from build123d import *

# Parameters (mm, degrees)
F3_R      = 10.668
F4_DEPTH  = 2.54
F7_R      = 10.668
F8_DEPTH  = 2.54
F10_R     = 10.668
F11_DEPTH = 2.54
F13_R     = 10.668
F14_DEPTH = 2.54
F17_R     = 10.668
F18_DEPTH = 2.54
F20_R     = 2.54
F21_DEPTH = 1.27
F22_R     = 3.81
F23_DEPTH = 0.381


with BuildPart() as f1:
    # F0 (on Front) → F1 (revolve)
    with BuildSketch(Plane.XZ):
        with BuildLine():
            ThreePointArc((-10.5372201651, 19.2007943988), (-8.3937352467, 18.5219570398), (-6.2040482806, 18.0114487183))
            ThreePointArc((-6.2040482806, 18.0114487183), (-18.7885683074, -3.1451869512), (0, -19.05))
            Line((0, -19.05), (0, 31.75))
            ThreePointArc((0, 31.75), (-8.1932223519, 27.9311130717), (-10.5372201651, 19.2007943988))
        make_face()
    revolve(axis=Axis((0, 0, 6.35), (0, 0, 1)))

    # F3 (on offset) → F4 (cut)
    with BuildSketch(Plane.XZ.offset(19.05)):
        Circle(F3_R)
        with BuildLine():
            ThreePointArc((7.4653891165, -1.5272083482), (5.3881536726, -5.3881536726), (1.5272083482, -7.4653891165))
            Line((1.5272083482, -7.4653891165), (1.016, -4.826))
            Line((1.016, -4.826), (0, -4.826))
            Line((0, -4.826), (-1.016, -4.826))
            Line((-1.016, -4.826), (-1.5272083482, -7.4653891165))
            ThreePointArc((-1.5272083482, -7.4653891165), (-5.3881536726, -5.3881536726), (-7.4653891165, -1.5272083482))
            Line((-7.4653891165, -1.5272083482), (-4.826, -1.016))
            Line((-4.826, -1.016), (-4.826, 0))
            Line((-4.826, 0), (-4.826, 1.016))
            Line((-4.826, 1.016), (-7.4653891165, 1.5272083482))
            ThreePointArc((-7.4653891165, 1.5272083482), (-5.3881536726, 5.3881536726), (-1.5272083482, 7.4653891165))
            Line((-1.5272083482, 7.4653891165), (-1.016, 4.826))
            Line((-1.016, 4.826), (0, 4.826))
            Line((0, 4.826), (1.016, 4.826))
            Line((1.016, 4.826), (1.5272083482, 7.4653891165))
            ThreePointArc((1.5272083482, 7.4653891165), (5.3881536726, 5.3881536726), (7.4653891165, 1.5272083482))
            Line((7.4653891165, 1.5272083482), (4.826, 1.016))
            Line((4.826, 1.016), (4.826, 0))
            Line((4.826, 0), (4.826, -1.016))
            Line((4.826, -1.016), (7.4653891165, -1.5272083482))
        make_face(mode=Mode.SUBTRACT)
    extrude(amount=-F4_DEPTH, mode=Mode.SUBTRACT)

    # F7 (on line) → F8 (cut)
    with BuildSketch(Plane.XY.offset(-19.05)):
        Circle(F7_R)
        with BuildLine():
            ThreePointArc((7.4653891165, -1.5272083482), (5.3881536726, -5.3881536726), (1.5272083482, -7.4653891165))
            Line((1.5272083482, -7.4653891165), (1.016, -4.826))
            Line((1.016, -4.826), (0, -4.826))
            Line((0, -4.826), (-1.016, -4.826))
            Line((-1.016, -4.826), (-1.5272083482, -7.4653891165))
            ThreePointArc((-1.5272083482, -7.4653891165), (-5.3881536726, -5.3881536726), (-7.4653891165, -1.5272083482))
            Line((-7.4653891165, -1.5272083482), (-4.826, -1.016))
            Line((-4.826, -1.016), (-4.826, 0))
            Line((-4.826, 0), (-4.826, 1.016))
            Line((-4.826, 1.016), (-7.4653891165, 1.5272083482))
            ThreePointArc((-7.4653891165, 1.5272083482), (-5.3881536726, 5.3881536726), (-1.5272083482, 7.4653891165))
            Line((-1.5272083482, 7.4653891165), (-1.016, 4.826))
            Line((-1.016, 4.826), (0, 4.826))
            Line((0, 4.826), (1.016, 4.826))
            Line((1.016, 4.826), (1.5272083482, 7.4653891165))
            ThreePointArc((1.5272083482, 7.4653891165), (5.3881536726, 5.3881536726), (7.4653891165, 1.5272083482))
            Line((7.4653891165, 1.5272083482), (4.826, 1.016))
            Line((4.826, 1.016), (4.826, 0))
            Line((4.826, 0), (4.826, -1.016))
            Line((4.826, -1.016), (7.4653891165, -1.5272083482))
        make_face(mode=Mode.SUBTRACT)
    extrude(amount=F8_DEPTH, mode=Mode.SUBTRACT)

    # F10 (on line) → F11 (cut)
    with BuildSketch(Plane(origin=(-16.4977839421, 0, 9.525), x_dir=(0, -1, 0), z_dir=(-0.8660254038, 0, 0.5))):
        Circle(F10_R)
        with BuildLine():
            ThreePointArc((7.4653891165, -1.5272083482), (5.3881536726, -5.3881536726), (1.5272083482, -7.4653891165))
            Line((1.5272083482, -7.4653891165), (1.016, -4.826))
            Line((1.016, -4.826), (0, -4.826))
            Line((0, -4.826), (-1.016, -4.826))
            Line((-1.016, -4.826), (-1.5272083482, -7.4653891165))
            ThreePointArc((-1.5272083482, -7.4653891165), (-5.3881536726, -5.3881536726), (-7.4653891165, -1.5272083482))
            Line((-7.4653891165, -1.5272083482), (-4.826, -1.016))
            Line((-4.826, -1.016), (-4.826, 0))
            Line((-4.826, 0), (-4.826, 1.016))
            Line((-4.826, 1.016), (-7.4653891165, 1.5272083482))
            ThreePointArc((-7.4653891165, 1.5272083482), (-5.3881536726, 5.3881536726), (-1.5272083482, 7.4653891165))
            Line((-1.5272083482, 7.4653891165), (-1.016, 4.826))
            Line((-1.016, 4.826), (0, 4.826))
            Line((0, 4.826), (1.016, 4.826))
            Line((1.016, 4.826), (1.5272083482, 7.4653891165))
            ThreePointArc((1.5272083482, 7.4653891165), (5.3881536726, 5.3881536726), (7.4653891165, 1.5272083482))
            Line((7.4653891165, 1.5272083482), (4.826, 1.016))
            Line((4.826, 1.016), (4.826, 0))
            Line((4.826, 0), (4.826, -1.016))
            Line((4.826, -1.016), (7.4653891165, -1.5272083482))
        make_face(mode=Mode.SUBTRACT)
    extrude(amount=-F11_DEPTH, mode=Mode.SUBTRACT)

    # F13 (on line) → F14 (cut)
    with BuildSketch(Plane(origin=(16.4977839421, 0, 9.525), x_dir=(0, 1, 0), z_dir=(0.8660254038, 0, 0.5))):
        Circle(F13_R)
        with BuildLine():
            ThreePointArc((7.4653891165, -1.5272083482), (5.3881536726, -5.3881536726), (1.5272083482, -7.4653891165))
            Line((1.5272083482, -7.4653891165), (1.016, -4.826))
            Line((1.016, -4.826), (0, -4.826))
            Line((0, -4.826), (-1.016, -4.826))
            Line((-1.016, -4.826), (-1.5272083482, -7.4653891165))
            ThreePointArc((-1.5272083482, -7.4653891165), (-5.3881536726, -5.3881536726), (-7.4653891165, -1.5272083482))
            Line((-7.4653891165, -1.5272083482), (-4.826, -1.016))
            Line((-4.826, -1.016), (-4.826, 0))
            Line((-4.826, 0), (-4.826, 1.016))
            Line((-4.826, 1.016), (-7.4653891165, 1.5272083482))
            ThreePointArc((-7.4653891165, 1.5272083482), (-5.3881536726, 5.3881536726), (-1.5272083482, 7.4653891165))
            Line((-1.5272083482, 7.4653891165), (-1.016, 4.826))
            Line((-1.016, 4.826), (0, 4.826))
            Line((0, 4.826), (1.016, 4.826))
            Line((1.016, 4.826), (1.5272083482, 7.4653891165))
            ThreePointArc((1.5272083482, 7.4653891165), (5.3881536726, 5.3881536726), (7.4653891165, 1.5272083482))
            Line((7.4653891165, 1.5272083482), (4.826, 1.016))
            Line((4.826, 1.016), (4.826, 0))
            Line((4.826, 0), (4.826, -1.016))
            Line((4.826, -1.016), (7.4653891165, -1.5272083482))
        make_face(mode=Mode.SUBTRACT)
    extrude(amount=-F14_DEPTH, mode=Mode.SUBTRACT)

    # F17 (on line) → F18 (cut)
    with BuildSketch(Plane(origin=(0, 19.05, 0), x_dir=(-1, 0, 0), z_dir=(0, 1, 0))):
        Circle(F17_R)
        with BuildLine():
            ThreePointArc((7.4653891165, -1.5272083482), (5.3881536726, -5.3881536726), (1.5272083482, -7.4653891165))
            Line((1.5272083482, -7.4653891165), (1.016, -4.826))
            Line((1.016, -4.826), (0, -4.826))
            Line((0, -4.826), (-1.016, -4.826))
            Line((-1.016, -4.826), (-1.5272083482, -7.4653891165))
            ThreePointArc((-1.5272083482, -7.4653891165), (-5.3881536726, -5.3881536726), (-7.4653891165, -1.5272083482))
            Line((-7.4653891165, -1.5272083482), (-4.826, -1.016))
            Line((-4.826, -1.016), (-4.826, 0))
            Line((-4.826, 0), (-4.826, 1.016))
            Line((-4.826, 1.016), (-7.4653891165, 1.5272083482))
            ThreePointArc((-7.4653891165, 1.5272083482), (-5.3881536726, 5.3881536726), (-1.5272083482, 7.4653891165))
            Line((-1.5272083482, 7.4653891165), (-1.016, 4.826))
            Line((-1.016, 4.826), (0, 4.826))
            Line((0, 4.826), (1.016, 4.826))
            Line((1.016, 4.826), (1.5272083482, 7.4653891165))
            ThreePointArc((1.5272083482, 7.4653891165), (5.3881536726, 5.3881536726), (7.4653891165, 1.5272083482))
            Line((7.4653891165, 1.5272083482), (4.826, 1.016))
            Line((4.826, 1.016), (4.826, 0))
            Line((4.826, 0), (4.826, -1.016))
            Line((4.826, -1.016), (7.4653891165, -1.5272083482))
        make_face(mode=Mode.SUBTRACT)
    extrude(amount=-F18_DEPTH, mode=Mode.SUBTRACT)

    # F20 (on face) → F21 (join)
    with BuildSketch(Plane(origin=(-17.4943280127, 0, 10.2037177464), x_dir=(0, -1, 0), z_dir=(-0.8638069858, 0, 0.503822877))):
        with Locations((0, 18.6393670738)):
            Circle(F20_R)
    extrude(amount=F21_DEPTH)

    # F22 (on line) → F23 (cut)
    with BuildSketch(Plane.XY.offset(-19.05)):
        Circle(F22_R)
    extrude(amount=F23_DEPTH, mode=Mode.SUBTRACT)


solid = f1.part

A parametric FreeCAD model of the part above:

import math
import FreeCAD as App
import Part
import Sketcher
from FreeCAD import Vector
Q = App.Units.Quantity

doc = App.newDocument("Part")
body = doc.addObject("PartDesign::Body", "Body")

# Sketch on XZ plane
sketch1 = body.newObject("Sketcher::SketchObject", "Sketch")
sketch1.AttachmentSupport = (doc.getObject("XZ_Plane"), [""])
sketch1.MapMode = "FlatFace"
sketch1.addGeometry([
    Part.ArcOfCircle(Part.Circle(Vector(-0.72807, 46.450462, 0), Vector(0, 0, 1), 28.961419), math.radians(-109.797518), math.radians(-100.899005)),
    Part.ArcOfCircle(Part.Circle(Vector(0, 0, 0), Vector(0, 0, 1), 19.05), math.radians(109.006282), math.radians(270)),
    Part.LineSegment(Vector(0, -19.05, 0), Vector(0, 31.75, 0)),
    Part.ArcOfCircle(Part.Circle(Vector(0, 21.051491, 0), Vector(0, 0, 1), 10.698509), math.radians(90), math.radians(189.961503)),
], False)
sketch1.addConstraint([
    Sketcher.Constraint("Coincident", 0, 2, 1, 1),
    Sketcher.Constraint("Coincident", 1, 2, 2, 1),
    Sketcher.Constraint("Coincident", 2, 2, 3, 1),
    Sketcher.Constraint("Coincident", 3, 2, 0, 1),
    Sketcher.Constraint("Vertical", 2),
    Sketcher.Constraint("Coincident", 1, 3, -1, 1),
    Sketcher.Constraint("PointOnObject", 3, 3, -2),
    Sketcher.Constraint("PointOnObject", 1, 2, -2),
    Sketcher.Constraint("DistanceY", 2, 1, 2, 2, Q("2 in")),
    Sketcher.Constraint("Radius", 1, Q("0.75 in")),
    Sketcher.Constraint("Radius", 0, 28.961419),
    Sketcher.Constraint("Radius", 3, 10.698509),
    Sketcher.Constraint("DistanceX", 0, 3, -1, 1, 0.72807),
    Sketcher.Constraint("DistanceY", -1, 1, 0, 3, 46.450462),
])
revolution = body.newObject("PartDesign::Revolution", "Revolution")
revolution.Profile = sketch1
revolution.ReferenceAxis = (sketch1, ["V_Axis"])
revolution.Angle = 360

# Sketch on XZ plane
sketch2 = body.newObject("Sketcher::SketchObject", "Sketch001")
sketch2.AttachmentSupport = (doc.getObject("XZ_Plane"), [""])
sketch2.MapMode = "FlatFace"
sketch2.AttachmentOffset = App.Placement(Vector(0, 0, 0.75 * 25.4), App.Rotation())
sketch2.addGeometry([
    Part.Circle(Vector(0, 0, 0), Vector(0, 0, 1), 10.668),  # 0
    Part.LineSegment(Vector(4.826, -1.016, 0), Vector(7.465389, -1.527208, 0)),  # 1
    Part.ArcOfCircle(Part.Circle(Vector(0, 0, 0), Vector(0, 0, 1), 7.62), math.radians(-78.438418), math.radians(-11.561582)),  # 2
    Part.LineSegment(Vector(1.527208, -7.465389, 0), Vector(1.016, -4.826, 0)),  # 3
    Part.LineSegment(Vector(1.016, -4.826, 0), Vector(-1.016, -4.826, 0)),  # 4
    Part.LineSegment(Vector(-1.016, -4.826, 0), Vector(-1.527208, -7.465389, 0)),  # 5
    Part.ArcOfCircle(Part.Circle(Vector(0, 0, 0), Vector(0, 0, 1), 7.62), math.radians(-168.438418), math.radians(-101.561582)),  # 6
    Part.LineSegment(Vector(-7.465389, -1.527208, 0), Vector(-4.826, -1.016, 0)),  # 7
    Part.LineSegment(Vector(-4.826, -1.016, 0), Vector(-4.826, 1.016, 0)),  # 8
    Part.LineSegment(Vector(-4.826, 1.016, 0), Vector(-7.465389, 1.527208, 0)),  # 9
    Part.ArcOfCircle(Part.Circle(Vector(0, 0, 0), Vector(0, 0, 1), 7.62), math.radians(101.561582), math.radians(168.438418)),  # 10
    Part.LineSegment(Vector(-1.527208, 7.465389, 0), Vector(-1.016, 4.826, 0)),  # 11
    Part.LineSegment(Vector(-1.016, 4.826, 0), Vector(1.016, 4.826, 0)),  # 12
    Part.LineSegment(Vector(1.016, 4.826, 0), Vector(1.527208, 7.465389, 0)),  # 13
    Part.ArcOfCircle(Part.Circle(Vector(0, 0, 0), Vector(0, 0, 1), 7.62), math.radians(11.561582), math.radians(78.438418)),  # 14
    Part.LineSegment(Vector(7.465389, 1.527208, 0), Vector(4.826, 1.016, 0)),  # 15
    Part.LineSegment(Vector(4.826, 1.016, 0), Vector(4.826, -1.016, 0)),  # 16
], False)
sketch2.addConstraint([
    Sketcher.Constraint("Coincident", 1, 2, 2, 2),
    Sketcher.Constraint("Coincident", 2, 1, 3, 1),
    Sketcher.Constraint("Coincident", 3, 2, 4, 1),
    Sketcher.Constraint("Coincident", 4, 2, 5, 1),
    Sketcher.Constraint("Coincident", 5, 2, 6, 2),
    Sketcher.Constraint("Coincident", 6, 1, 7, 1),
    Sketcher.Constraint("Coincident", 7, 2, 8, 1),
    Sketcher.Constraint("Coincident", 8, 2, 9, 1),
    Sketcher.Constraint("Coincident", 9, 2, 10, 2),
    Sketcher.Constraint("Coincident", 10, 1, 11, 1),
    Sketcher.Constraint("Coincident", 11, 2, 12, 1),
    Sketcher.Constraint("Coincident", 12, 2, 13, 1),
    Sketcher.Constraint("Coincident", 13, 2, 14, 2),
    Sketcher.Constraint("Coincident", 14, 1, 15, 1),
    Sketcher.Constraint("Coincident", 15, 2, 16, 1),
    Sketcher.Constraint("Coincident", 16, 2, 1, 1),
    Sketcher.Constraint("Horizontal", 4),
    Sketcher.Constraint("Vertical", 8),
    Sketcher.Constraint("Horizontal", 12),
    Sketcher.Constraint("Vertical", 16),
    Sketcher.Constraint("Coincident", 0, 3, -1, 1),
    Sketcher.Constraint("Coincident", 2, 3, -1, 1),
    Sketcher.Constraint("Coincident", 6, 3, -1, 1),
    Sketcher.Constraint("Coincident", 10, 3, -1, 1),
    Sketcher.Constraint("Coincident", 14, 3, -1, 1),
    Sketcher.Constraint("Equal", 2, 6),
    Sketcher.Constraint("Equal", 6, 10),
    Sketcher.Constraint("Equal", 10, 14),
    Sketcher.Constraint("Symmetric", 3, 2, 11, 2, -1, 1),
    Sketcher.Constraint("Symmetric", 7, 2, 15, 2, -1, 1),
    Sketcher.Constraint("Perpendicular", 1, 5),
    Sketcher.Constraint("Perpendicular", 3, 7),
    Sketcher.Constraint("Perpendicular", 5, 9),
    Sketcher.Constraint("Perpendicular", 7, 11),
    Sketcher.Constraint("Perpendicular", 9, 13),
    Sketcher.Constraint("Perpendicular", 11, 15),
    Sketcher.Constraint("Horizontal", 2, 1, 5, 2),
    Sketcher.Constraint("Horizontal", 1, 2, 6, 1),
    Sketcher.Constraint("Horizontal", 10, 1, 13, 2),
    Sketcher.Constraint("Horizontal", 9, 2, 14, 1),
    Sketcher.Constraint("Horizontal", 8, 2, 15, 2),
    Sketcher.Constraint("Equal", 12, 8),
    Sketcher.Constraint("Equal", 1, 3),
    Sketcher.Constraint("Radius", 2, Q("0.3 in")),
    Sketcher.Constraint("Diameter", 0, Q("0.84 in")),
    Sketcher.Constraint("DistanceX", 4, 2, 4, 1, Q("0.08 in")),
    Sketcher.Constraint("DistanceY", 3, 2, -1, 1, Q("0.19 in")),
    Sketcher.Constraint("Distance", 1, 2.68844),
])
pocket1 = body.newObject("PartDesign::Pocket", "Pocket")
pocket1.Profile = sketch2
pocket1.Length = Q("0.1 in")

# Sketch on XY plane
sketch3 = body.newObject("Sketcher::SketchObject", "Sketch002")
sketch3.AttachmentSupport = (doc.getObject("XY_Plane"), [""])
sketch3.MapMode = "FlatFace"
sketch3.AttachmentOffset = App.Placement(Vector(0, 0, -0.75 * 25.4), App.Rotation())
sketch3.addGeometry([
    Part.Circle(Vector(0, 0, 0), Vector(0, 0, 1), 10.668),  # 0
    Part.LineSegment(Vector(4.826, -1.016, 0), Vector(7.465389, -1.527208, 0)),  # 1
    Part.ArcOfCircle(Part.Circle(Vector(0, 0, 0), Vector(0, 0, 1), 7.62), math.radians(-78.438418), math.radians(-11.561582)),  # 2
    Part.LineSegment(Vector(1.527208, -7.465389, 0), Vector(1.016, -4.826, 0)),  # 3
    Part.LineSegment(Vector(1.016, -4.826, 0), Vector(-1.016, -4.826, 0)),  # 4
    Part.LineSegment(Vector(-1.016, -4.826, 0), Vector(-1.527208, -7.465389, 0)),  # 5
    Part.ArcOfCircle(Part.Circle(Vector(0, 0, 0), Vector(0, 0, 1), 7.62), math.radians(-168.438418), math.radians(-101.561582)),  # 6
    Part.LineSegment(Vector(-7.465389, -1.527208, 0), Vector(-4.826, -1.016, 0)),  # 7
    Part.LineSegment(Vector(-4.826, -1.016, 0), Vector(-4.826, 1.016, 0)),  # 8
    Part.LineSegment(Vector(-4.826, 1.016, 0), Vector(-7.465389, 1.527208, 0)),  # 9
    Part.ArcOfCircle(Part.Circle(Vector(0, 0, 0), Vector(0, 0, 1), 7.62), math.radians(101.561582), math.radians(168.438418)),  # 10
    Part.LineSegment(Vector(-1.527208, 7.465389, 0), Vector(-1.016, 4.826, 0)),  # 11
    Part.LineSegment(Vector(-1.016, 4.826, 0), Vector(1.016, 4.826, 0)),  # 12
    Part.LineSegment(Vector(1.016, 4.826, 0), Vector(1.527208, 7.465389, 0)),  # 13
    Part.ArcOfCircle(Part.Circle(Vector(0, 0, 0), Vector(0, 0, 1), 7.62), math.radians(11.561582), math.radians(78.438418)),  # 14
    Part.LineSegment(Vector(7.465389, 1.527208, 0), Vector(4.826, 1.016, 0)),  # 15
    Part.LineSegment(Vector(4.826, 1.016, 0), Vector(4.826, -1.016, 0)),  # 16
], False)
sketch3.addConstraint([
    Sketcher.Constraint("Coincident", 1, 2, 2, 2),
    Sketcher.Constraint("Coincident", 2, 1, 3, 1),
    Sketcher.Constraint("Coincident", 3, 2, 4, 1),
    Sketcher.Constraint("Coincident", 4, 2, 5, 1),
    Sketcher.Constraint("Coincident", 5, 2, 6, 2),
    Sketcher.Constraint("Coincident", 6, 1, 7, 1),
    Sketcher.Constraint("Coincident", 7, 2, 8, 1),
    Sketcher.Constraint("Coincident", 8, 2, 9, 1),
    Sketcher.Constraint("Coincident", 9, 2, 10, 2),
    Sketcher.Constraint("Coincident", 10, 1, 11, 1),
    Sketcher.Constraint("Coincident", 11, 2, 12, 1),
    Sketcher.Constraint("Coincident", 12, 2, 13, 1),
    Sketcher.Constraint("Coincident", 13, 2, 14, 2),
    Sketcher.Constraint("Coincident", 14, 1, 15, 1),
    Sketcher.Constraint("Coincident", 15, 2, 16, 1),
    Sketcher.Constraint("Coincident", 16, 2, 1, 1),
    Sketcher.Constraint("Horizontal", 4),
    Sketcher.Constraint("Vertical", 8),
    Sketcher.Constraint("Horizontal", 12),
    Sketcher.Constraint("Vertical", 16),
    Sketcher.Constraint("Coincident", 0, 3, -1, 1),
    Sketcher.Constraint("Coincident", 2, 3, -1, 1),
    Sketcher.Constraint("Coincident", 6, 3, -1, 1),
    Sketcher.Constraint("Coincident", 10, 3, -1, 1),
    Sketcher.Constraint("Coincident", 14, 3, -1, 1),
    Sketcher.Constraint("Equal", 2, 6),
    Sketcher.Constraint("Equal", 6, 10),
    Sketcher.Constraint("Equal", 10, 14),
    Sketcher.Constraint("Symmetric", 3, 2, 11, 2, -1, 1),
    Sketcher.Constraint("Symmetric", 7, 2, 15, 2, -1, 1),
    Sketcher.Constraint("Perpendicular", 1, 5),
    Sketcher.Constraint("Perpendicular", 3, 7),
    Sketcher.Constraint("Perpendicular", 5, 9),
    Sketcher.Constraint("Perpendicular", 7, 11),
    Sketcher.Constraint("Perpendicular", 9, 13),
    Sketcher.Constraint("Perpendicular", 11, 15),
    Sketcher.Constraint("Horizontal", 2, 1, 5, 2),
    Sketcher.Constraint("Horizontal", 1, 2, 6, 1),
    Sketcher.Constraint("Horizontal", 10, 1, 13, 2),
    Sketcher.Constraint("Horizontal", 9, 2, 14, 1),
    Sketcher.Constraint("Horizontal", 8, 2, 15, 2),
    Sketcher.Constraint("Equal", 12, 8),
    Sketcher.Constraint("Equal", 1, 3),
    Sketcher.Constraint("Radius", 2, Q("0.3 in")),
    Sketcher.Constraint("Diameter", 0, Q("0.84 in")),
    Sketcher.Constraint("DistanceX", 4, 2, 4, 1, Q("0.08 in")),
    Sketcher.Constraint("DistanceY", 3, 2, -1, 1, Q("0.19 in")),
    Sketcher.Constraint("Distance", 1, 2.68844),
])
pocket2 = body.newObject("PartDesign::Pocket", "Pocket001")
pocket2.Profile = sketch3
pocket2.Length = Q("0.1 in")
pocket2.Reversed = True

# Sketch on an angled plane
sketch4 = body.newObject("Sketcher::SketchObject", "Sketch003")
sketch4.Placement = App.Placement(Vector(-16.497784, 0, 9.525), App.Rotation(Vector(0, -1, 0), Vector(0.5, 0, 0.866025404), Vector(-0.866025404, 0, 0.5), "ZXY"))
sketch4.addGeometry([
    Part.Circle(Vector(0, 0, 0), Vector(0, 0, 1), 10.668),  # 0
    Part.LineSegment(Vector(4.826, -1.016, 0), Vector(7.465389, -1.527208, 0)),  # 1
    Part.ArcOfCircle(Part.Circle(Vector(0, 0, 0), Vector(0, 0, 1), 7.62), math.radians(-78.438418), math.radians(-11.561582)),  # 2
    Part.LineSegment(Vector(1.527208, -7.465389, 0), Vector(1.016, -4.826, 0)),  # 3
    Part.LineSegment(Vector(1.016, -4.826, 0), Vector(-1.016, -4.826, 0)),  # 4
    Part.LineSegment(Vector(-1.016, -4.826, 0), Vector(-1.527208, -7.465389, 0)),  # 5
    Part.ArcOfCircle(Part.Circle(Vector(0, 0, 0), Vector(0, 0, 1), 7.62), math.radians(-168.438418), math.radians(-101.561582)),  # 6
    Part.LineSegment(Vector(-7.465389, -1.527208, 0), Vector(-4.826, -1.016, 0)),  # 7
    Part.LineSegment(Vector(-4.826, -1.016, 0), Vector(-4.826, 1.016, 0)),  # 8
    Part.LineSegment(Vector(-4.826, 1.016, 0), Vector(-7.465389, 1.527208, 0)),  # 9
    Part.ArcOfCircle(Part.Circle(Vector(0, 0, 0), Vector(0, 0, 1), 7.62), math.radians(101.561582), math.radians(168.438418)),  # 10
    Part.LineSegment(Vector(-1.527208, 7.465389, 0), Vector(-1.016, 4.826, 0)),  # 11
    Part.LineSegment(Vector(-1.016, 4.826, 0), Vector(1.016, 4.826, 0)),  # 12
    Part.LineSegment(Vector(1.016, 4.826, 0), Vector(1.527208, 7.465389, 0)),  # 13
    Part.ArcOfCircle(Part.Circle(Vector(0, 0, 0), Vector(0, 0, 1), 7.62), math.radians(11.561582), math.radians(78.438418)),  # 14
    Part.LineSegment(Vector(7.465389, 1.527208, 0), Vector(4.826, 1.016, 0)),  # 15
    Part.LineSegment(Vector(4.826, 1.016, 0), Vector(4.826, -1.016, 0)),  # 16
], False)
sketch4.addConstraint([
    Sketcher.Constraint("Coincident", 1, 2, 2, 2),
    Sketcher.Constraint("Coincident", 2, 1, 3, 1),
    Sketcher.Constraint("Coincident", 3, 2, 4, 1),
    Sketcher.Constraint("Coincident", 4, 2, 5, 1),
    Sketcher.Constraint("Coincident", 5, 2, 6, 2),
    Sketcher.Constraint("Coincident", 6, 1, 7, 1),
    Sketcher.Constraint("Coincident", 7, 2, 8, 1),
    Sketcher.Constraint("Coincident", 8, 2, 9, 1),
    Sketcher.Constraint("Coincident", 9, 2, 10, 2),
    Sketcher.Constraint("Coincident", 10, 1, 11, 1),
    Sketcher.Constraint("Coincident", 11, 2, 12, 1),
    Sketcher.Constraint("Coincident", 12, 2, 13, 1),
    Sketcher.Constraint("Coincident", 13, 2, 14, 2),
    Sketcher.Constraint("Coincident", 14, 1, 15, 1),
    Sketcher.Constraint("Coincident", 15, 2, 16, 1),
    Sketcher.Constraint("Coincident", 16, 2, 1, 1),
    Sketcher.Constraint("Horizontal", 4),
    Sketcher.Constraint("Vertical", 8),
    Sketcher.Constraint("Horizontal", 12),
    Sketcher.Constraint("Vertical", 16),
    Sketcher.Constraint("Coincident", 0, 3, -1, 1),
    Sketcher.Constraint("Coincident", 2, 3, -1, 1),
    Sketcher.Constraint("Coincident", 6, 3, -1, 1),
    Sketcher.Constraint("Coincident", 10, 3, -1, 1),
    Sketcher.Constraint("Coincident", 14, 3, -1, 1),
    Sketcher.Constraint("Equal", 2, 6),
    Sketcher.Constraint("Equal", 6, 10),
    Sketcher.Constraint("Equal", 10, 14),
    Sketcher.Constraint("Symmetric", 3, 2, 11, 2, -1, 1),
    Sketcher.Constraint("Symmetric", 7, 2, 15, 2, -1, 1),
    Sketcher.Constraint("Perpendicular", 1, 5),
    Sketcher.Constraint("Perpendicular", 3, 7),
    Sketcher.Constraint("Perpendicular", 5, 9),
    Sketcher.Constraint("Perpendicular", 7, 11),
    Sketcher.Constraint("Perpendicular", 9, 13),
    Sketcher.Constraint("Perpendicular", 11, 15),
    Sketcher.Constraint("Horizontal", 2, 1, 5, 2),
    Sketcher.Constraint("Horizontal", 1, 2, 6, 1),
    Sketcher.Constraint("Horizontal", 10, 1, 13, 2),
    Sketcher.Constraint("Horizontal", 9, 2, 14, 1),
    Sketcher.Constraint("Horizontal", 8, 2, 15, 2),
    Sketcher.Constraint("Equal", 12, 8),
    Sketcher.Constraint("Equal", 1, 3),
    Sketcher.Constraint("Radius", 2, Q("0.3 in")),
    Sketcher.Constraint("Diameter", 0, Q("0.84 in")),
    Sketcher.Constraint("DistanceX", 4, 2, 4, 1, Q("0.08 in")),
    Sketcher.Constraint("DistanceY", 3, 2, -1, 1, Q("0.19 in")),
    Sketcher.Constraint("Distance", 1, 2.68844),
])
pocket3 = body.newObject("PartDesign::Pocket", "Pocket002")
pocket3.Profile = sketch4
pocket3.Length = Q("0.1 in")

# Sketch on an angled plane
sketch5 = body.newObject("Sketcher::SketchObject", "Sketch004")
sketch5.Placement = App.Placement(Vector(16.497784, 0, 9.525), App.Rotation(Vector(0, 1, 0), Vector(-0.5, 0, 0.866025404), Vector(0.866025404, 0, 0.5), "ZXY"))
sketch5.addGeometry([
    Part.Circle(Vector(0, 0, 0), Vector(0, 0, 1), 10.668),  # 0
    Part.LineSegment(Vector(4.826, -1.016, 0), Vector(7.465389, -1.527208, 0)),  # 1
    Part.ArcOfCircle(Part.Circle(Vector(0, 0, 0), Vector(0, 0, 1), 7.62), math.radians(-78.438418), math.radians(-11.561582)),  # 2
    Part.LineSegment(Vector(1.527208, -7.465389, 0), Vector(1.016, -4.826, 0)),  # 3
    Part.LineSegment(Vector(1.016, -4.826, 0), Vector(-1.016, -4.826, 0)),  # 4
    Part.LineSegment(Vector(-1.016, -4.826, 0), Vector(-1.527208, -7.465389, 0)),  # 5
    Part.ArcOfCircle(Part.Circle(Vector(0, 0, 0), Vector(0, 0, 1), 7.62), math.radians(-168.438418), math.radians(-101.561582)),  # 6
    Part.LineSegment(Vector(-7.465389, -1.527208, 0), Vector(-4.826, -1.016, 0)),  # 7
    Part.LineSegment(Vector(-4.826, -1.016, 0), Vector(-4.826, 1.016, 0)),  # 8
    Part.LineSegment(Vector(-4.826, 1.016, 0), Vector(-7.465389, 1.527208, 0)),  # 9
    Part.ArcOfCircle(Part.Circle(Vector(0, 0, 0), Vector(0, 0, 1), 7.62), math.radians(101.561582), math.radians(168.438418)),  # 10
    Part.LineSegment(Vector(-1.527208, 7.465389, 0), Vector(-1.016, 4.826, 0)),  # 11
    Part.LineSegment(Vector(-1.016, 4.826, 0), Vector(1.016, 4.826, 0)),  # 12
    Part.LineSegment(Vector(1.016, 4.826, 0), Vector(1.527208, 7.465389, 0)),  # 13
    Part.ArcOfCircle(Part.Circle(Vector(0, 0, 0), Vector(0, 0, 1), 7.62), math.radians(11.561582), math.radians(78.438418)),  # 14
    Part.LineSegment(Vector(7.465389, 1.527208, 0), Vector(4.826, 1.016, 0)),  # 15
    Part.LineSegment(Vector(4.826, 1.016, 0), Vector(4.826, -1.016, 0)),  # 16
], False)
sketch5.addConstraint([
    Sketcher.Constraint("Coincident", 1, 2, 2, 2),
    Sketcher.Constraint("Coincident", 2, 1, 3, 1),
    Sketcher.Constraint("Coincident", 3, 2, 4, 1),
    Sketcher.Constraint("Coincident", 4, 2, 5, 1),
    Sketcher.Constraint("Coincident", 5, 2, 6, 2),
    Sketcher.Constraint("Coincident", 6, 1, 7, 1),
    Sketcher.Constraint("Coincident", 7, 2, 8, 1),
    Sketcher.Constraint("Coincident", 8, 2, 9, 1),
    Sketcher.Constraint("Coincident", 9, 2, 10, 2),
    Sketcher.Constraint("Coincident", 10, 1, 11, 1),
    Sketcher.Constraint("Coincident", 11, 2, 12, 1),
    Sketcher.Constraint("Coincident", 12, 2, 13, 1),
    Sketcher.Constraint("Coincident", 13, 2, 14, 2),
    Sketcher.Constraint("Coincident", 14, 1, 15, 1),
    Sketcher.Constraint("Coincident", 15, 2, 16, 1),
    Sketcher.Constraint("Coincident", 16, 2, 1, 1),
    Sketcher.Constraint("Horizontal", 4),
    Sketcher.Constraint("Vertical", 8),
    Sketcher.Constraint("Horizontal", 12),
    Sketcher.Constraint("Vertical", 16),
    Sketcher.Constraint("Coincident", 0, 3, -1, 1),
    Sketcher.Constraint("Coincident", 2, 3, -1, 1),
    Sketcher.Constraint("Coincident", 6, 3, -1, 1),
    Sketcher.Constraint("Coincident", 10, 3, -1, 1),
    Sketcher.Constraint("Coincident", 14, 3, -1, 1),
    Sketcher.Constraint("Equal", 2, 6),
    Sketcher.Constraint("Equal", 6, 10),
    Sketcher.Constraint("Equal", 10, 14),
    Sketcher.Constraint("Symmetric", 3, 2, 11, 2, -1, 1),
    Sketcher.Constraint("Symmetric", 7, 2, 15, 2, -1, 1),
    Sketcher.Constraint("Perpendicular", 1, 5),
    Sketcher.Constraint("Perpendicular", 3, 7),
    Sketcher.Constraint("Perpendicular", 5, 9),
    Sketcher.Constraint("Perpendicular", 7, 11),
    Sketcher.Constraint("Perpendicular", 9, 13),
    Sketcher.Constraint("Perpendicular", 11, 15),
    Sketcher.Constraint("Horizontal", 2, 1, 5, 2),
    Sketcher.Constraint("Horizontal", 1, 2, 6, 1),
    Sketcher.Constraint("Horizontal", 10, 1, 13, 2),
    Sketcher.Constraint("Horizontal", 9, 2, 14, 1),
    Sketcher.Constraint("Horizontal", 8, 2, 15, 2),
    Sketcher.Constraint("Equal", 12, 8),
    Sketcher.Constraint("Equal", 1, 3),
    Sketcher.Constraint("Radius", 2, Q("0.3 in")),
    Sketcher.Constraint("Diameter", 0, Q("0.84 in")),
    Sketcher.Constraint("DistanceX", 4, 2, 4, 1, Q("0.08 in")),
    Sketcher.Constraint("DistanceY", 3, 2, -1, 1, Q("0.19 in")),
    Sketcher.Constraint("Distance", 1, 2.68844),
])
pocket4 = body.newObject("PartDesign::Pocket", "Pocket003")
pocket4.Profile = sketch5
pocket4.Length = Q("0.1 in")

# Sketch on XZ plane
sketch6 = body.newObject("Sketcher::SketchObject", "Sketch005")
sketch6.AttachmentSupport = (doc.getObject("XZ_Plane"), [""])
sketch6.MapMode = "FlatFace"
sketch6.AttachmentOffset = App.Placement(Vector(0, 0, -0.75 * 25.4), App.Rotation())
sketch6.addGeometry([
    Part.Circle(Vector(0, 0, 0), Vector(0, 0, 1), 10.668),  # 0
    Part.LineSegment(Vector(-4.826, -1.016, 0), Vector(-7.465389, -1.527208, 0)),  # 1
    Part.ArcOfCircle(Part.Circle(Vector(0, 0, 0), Vector(0, 0, 1), 7.62), math.radians(-168.438418), math.radians(-101.561582)),  # 2
    Part.LineSegment(Vector(-1.527208, -7.465389, 0), Vector(-1.016, -4.826, 0)),  # 3
    Part.LineSegment(Vector(-1.016, -4.826, 0), Vector(1.016, -4.826, 0)),  # 4
    Part.LineSegment(Vector(1.016, -4.826, 0), Vector(1.527208, -7.465389, 0)),  # 5
    Part.ArcOfCircle(Part.Circle(Vector(0, 0, 0), Vector(0, 0, 1), 7.62), math.radians(-78.438418), math.radians(-11.561582)),  # 6
    Part.LineSegment(Vector(7.465389, -1.527208, 0), Vector(4.826, -1.016, 0)),  # 7
    Part.LineSegment(Vector(4.826, -1.016, 0), Vector(4.826, 1.016, 0)),  # 8
    Part.LineSegment(Vector(4.826, 1.016, 0), Vector(7.465389, 1.527208, 0)),  # 9
    Part.ArcOfCircle(Part.Circle(Vector(0, 0, 0), Vector(0, 0, 1), 7.62), math.radians(11.561582), math.radians(78.438418)),  # 10
    Part.LineSegment(Vector(1.527208, 7.465389, 0), Vector(1.016, 4.826, 0)),  # 11
    Part.LineSegment(Vector(1.016, 4.826, 0), Vector(-1.016, 4.826, 0)),  # 12
    Part.LineSegment(Vector(-1.016, 4.826, 0), Vector(-1.527208, 7.465389, 0)),  # 13
    Part.ArcOfCircle(Part.Circle(Vector(0, 0, 0), Vector(0, 0, 1), 7.62), math.radians(101.561582), math.radians(168.438418)),  # 14
    Part.LineSegment(Vector(-7.465389, 1.527208, 0), Vector(-4.826, 1.016, 0)),  # 15
    Part.LineSegment(Vector(-4.826, 1.016, 0), Vector(-4.826, -1.016, 0)),  # 16
], False)
sketch6.addConstraint([
    Sketcher.Constraint("Coincident", 1, 2, 2, 1),
    Sketcher.Constraint("Coincident", 2, 2, 3, 1),
    Sketcher.Constraint("Coincident", 3, 2, 4, 1),
    Sketcher.Constraint("Coincident", 4, 2, 5, 1),
    Sketcher.Constraint("Coincident", 5, 2, 6, 1),
    Sketcher.Constraint("Coincident", 6, 2, 7, 1),
    Sketcher.Constraint("Coincident", 7, 2, 8, 1),
    Sketcher.Constraint("Coincident", 8, 2, 9, 1),
    Sketcher.Constraint("Coincident", 9, 2, 10, 1),
    Sketcher.Constraint("Coincident", 10, 2, 11, 1),
    Sketcher.Constraint("Coincident", 11, 2, 12, 1),
    Sketcher.Constraint("Coincident", 12, 2, 13, 1),
    Sketcher.Constraint("Coincident", 13, 2, 14, 1),
    Sketcher.Constraint("Coincident", 14, 2, 15, 1),
    Sketcher.Constraint("Coincident", 15, 2, 16, 1),
    Sketcher.Constraint("Coincident", 16, 2, 1, 1),
    Sketcher.Constraint("Horizontal", 4),
    Sketcher.Constraint("Vertical", 8),
    Sketcher.Constraint("Horizontal", 12),
    Sketcher.Constraint("Vertical", 16),
    Sketcher.Constraint("Coincident", 0, 3, -1, 1),
    Sketcher.Constraint("Coincident", 2, 3, -1, 1),
    Sketcher.Constraint("Coincident", 6, 3, -1, 1),
    Sketcher.Constraint("Coincident", 10, 3, -1, 1),
    Sketcher.Constraint("Coincident", 14, 3, -1, 1),
    Sketcher.Constraint("Equal", 2, 6),
    Sketcher.Constraint("Equal", 6, 10),
    Sketcher.Constraint("Equal", 10, 14),
    Sketcher.Constraint("Symmetric", 3, 2, 11, 2, -1, 1),
    Sketcher.Constraint("Symmetric", 7, 2, 15, 2, -1, 1),
    Sketcher.Constraint("Perpendicular", 1, 5),
    Sketcher.Constraint("Perpendicular", 3, 7),
    Sketcher.Constraint("Perpendicular", 5, 9),
    Sketcher.Constraint("Perpendicular", 7, 11),
    Sketcher.Constraint("Perpendicular", 9, 13),
    Sketcher.Constraint("Perpendicular", 11, 15),
    Sketcher.Constraint("Horizontal", 2, 2, 5, 2),
    Sketcher.Constraint("Horizontal", 1, 2, 6, 2),
    Sketcher.Constraint("Horizontal", 10, 2, 13, 2),
    Sketcher.Constraint("Horizontal", 9, 2, 14, 2),
    Sketcher.Constraint("Horizontal", 8, 2, 15, 2),
    Sketcher.Constraint("Equal", 12, 8),
    Sketcher.Constraint("Equal", 1, 3),
    Sketcher.Constraint("Radius", 2, Q("0.3 in")),
    Sketcher.Constraint("Diameter", 0, Q("0.84 in")),
    Sketcher.Constraint("DistanceX", 4, 1, 4, 2, Q("0.08 in")),
    Sketcher.Constraint("DistanceY", 3, 2, -1, 1, Q("0.19 in")),
    Sketcher.Constraint("Distance", 1, 2.68844),
])
pocket5 = body.newObject("PartDesign::Pocket", "Pocket004")
pocket5.Profile = sketch6
pocket5.Length = Q("0.1 in")
pocket5.Reversed = True

# Sketch on an angled plane
sketch7 = body.newObject("Sketcher::SketchObject", "Sketch006")
sketch7.Placement = App.Placement(Vector(-17.494328, 0, 10.203718), App.Rotation(Vector(0, -1, 0), Vector(0.503822877, 0, 0.863806986), Vector(-0.863806986, 0, 0.503822877), "ZXY"))
sketch7.addGeometry(Part.Circle(Vector(0, 18.639367, 0), Vector(0, 0, 1), 2.54), False)
sketch7.addConstraint([
    Sketcher.Constraint("PointOnObject", 0, 3, -2),
    Sketcher.Constraint("Diameter", 0, Q("0.2 in")),
    Sketcher.Constraint("DistanceY", -1, 1, 0, 3, 18.639367),
])
pad1 = body.newObject("PartDesign::Pad", "Pad")
pad1.Profile = sketch7
pad1.Length = Q("0.05 in")

# Sketch on XY plane
sketch8 = body.newObject("Sketcher::SketchObject", "Sketch007")
sketch8.AttachmentSupport = (doc.getObject("XY_Plane"), [""])
sketch8.MapMode = "FlatFace"
sketch8.AttachmentOffset = App.Placement(Vector(0, 0, -0.75 * 25.4), App.Rotation())
sketch8.addGeometry(Part.Circle(Vector(0, 0, 0), Vector(0, 0, 1), 3.81), False)
sketch8.addConstraint([
    Sketcher.Constraint("Coincident", 0, 3, -1, 1),
    Sketcher.Constraint("Diameter", 0, Q("0.3 in")),
])
pocket6 = body.newObject("PartDesign::Pocket", "Pocket005")
pocket6.Profile = sketch8
pocket6.Length = Q("0.015 in")
pocket6.Reversed = True

doc.recompute()
